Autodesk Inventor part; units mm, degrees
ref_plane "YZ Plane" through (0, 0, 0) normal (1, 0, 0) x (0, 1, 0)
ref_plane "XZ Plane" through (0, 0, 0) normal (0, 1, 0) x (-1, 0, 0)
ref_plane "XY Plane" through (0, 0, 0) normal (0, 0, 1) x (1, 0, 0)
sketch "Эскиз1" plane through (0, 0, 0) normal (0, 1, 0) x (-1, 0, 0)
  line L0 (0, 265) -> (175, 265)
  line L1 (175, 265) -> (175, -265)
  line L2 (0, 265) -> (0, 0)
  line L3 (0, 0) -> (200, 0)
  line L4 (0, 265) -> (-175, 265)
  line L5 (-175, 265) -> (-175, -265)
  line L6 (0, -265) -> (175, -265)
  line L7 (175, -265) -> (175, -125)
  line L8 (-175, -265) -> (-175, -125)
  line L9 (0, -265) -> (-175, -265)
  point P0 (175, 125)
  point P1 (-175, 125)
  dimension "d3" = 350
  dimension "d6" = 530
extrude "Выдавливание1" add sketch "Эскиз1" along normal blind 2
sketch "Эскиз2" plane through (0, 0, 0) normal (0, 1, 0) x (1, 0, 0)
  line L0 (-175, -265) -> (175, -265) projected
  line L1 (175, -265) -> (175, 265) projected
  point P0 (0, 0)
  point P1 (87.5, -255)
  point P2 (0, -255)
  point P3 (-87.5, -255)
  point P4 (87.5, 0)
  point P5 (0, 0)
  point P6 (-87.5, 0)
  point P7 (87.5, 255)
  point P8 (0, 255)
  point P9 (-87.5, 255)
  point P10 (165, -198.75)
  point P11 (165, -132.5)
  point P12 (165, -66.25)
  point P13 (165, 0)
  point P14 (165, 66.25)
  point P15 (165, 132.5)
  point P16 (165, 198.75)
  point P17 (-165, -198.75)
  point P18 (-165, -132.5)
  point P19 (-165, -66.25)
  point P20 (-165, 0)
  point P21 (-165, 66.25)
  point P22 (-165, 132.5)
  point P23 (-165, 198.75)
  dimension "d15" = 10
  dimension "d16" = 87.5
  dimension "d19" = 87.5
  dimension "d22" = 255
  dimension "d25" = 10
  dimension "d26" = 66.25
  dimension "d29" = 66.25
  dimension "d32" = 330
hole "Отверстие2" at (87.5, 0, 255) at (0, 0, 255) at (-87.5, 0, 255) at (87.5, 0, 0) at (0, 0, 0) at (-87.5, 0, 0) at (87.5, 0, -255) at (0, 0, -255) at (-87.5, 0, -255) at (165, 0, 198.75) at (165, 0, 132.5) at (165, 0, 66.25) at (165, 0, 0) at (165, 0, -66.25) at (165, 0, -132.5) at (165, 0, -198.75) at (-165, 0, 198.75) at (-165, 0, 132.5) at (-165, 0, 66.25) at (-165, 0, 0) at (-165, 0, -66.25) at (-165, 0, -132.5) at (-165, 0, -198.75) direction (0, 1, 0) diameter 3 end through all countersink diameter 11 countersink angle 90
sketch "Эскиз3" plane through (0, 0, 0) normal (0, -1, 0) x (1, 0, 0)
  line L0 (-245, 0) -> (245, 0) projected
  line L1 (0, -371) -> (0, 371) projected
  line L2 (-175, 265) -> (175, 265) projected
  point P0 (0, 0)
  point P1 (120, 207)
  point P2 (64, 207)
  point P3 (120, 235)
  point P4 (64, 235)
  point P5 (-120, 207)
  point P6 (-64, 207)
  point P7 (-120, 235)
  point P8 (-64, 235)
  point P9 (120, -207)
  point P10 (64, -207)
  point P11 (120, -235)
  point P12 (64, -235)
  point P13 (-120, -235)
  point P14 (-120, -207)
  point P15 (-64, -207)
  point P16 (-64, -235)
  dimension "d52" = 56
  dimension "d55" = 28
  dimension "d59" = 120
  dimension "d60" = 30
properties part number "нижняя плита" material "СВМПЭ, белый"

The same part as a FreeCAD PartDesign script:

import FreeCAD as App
import Part
import Sketcher


def add_polygon(sketch, points):
    """Adds a closed chain of lines whose ends are joined by coincident constraints."""
    first, n = sketch.GeometryCount, len(points)
    for a, b in zip(points, points[1:] + points[:1]):
        sketch.addGeometry(Part.LineSegment(App.Vector(*a, 0), App.Vector(*b, 0)), False)
    for i in range(n):
        sketch.addConstraint(Sketcher.Constraint("Coincident", first + i, 2, first + (i + 1) % n, 1))

doc = App.newDocument("Part")
body = doc.addObject("PartDesign::Body", "Body")

sketch1 = body.newObject("Sketcher::SketchObject", "Sketch")
sketch1.AttachmentSupport = (doc.getObject("XZ_Plane"), [""])
sketch1.MapMode = "FlatFace"
add_polygon(sketch1, [(-175, 265), (175, 265), (175, -265), (-175, -265)])
sketch1.addConstraint([
    Sketcher.Constraint("Horizontal", 0),
    Sketcher.Constraint("Vertical", 1),
    Sketcher.Constraint("Horizontal", 2),
    Sketcher.Constraint("Vertical", 3),
    Sketcher.Constraint("Symmetric", 0, 2, 2, 2, -1, 1),
    Sketcher.Constraint("DistanceX", 0, 1, 0, 2, 350.0),
    Sketcher.Constraint("DistanceY", 1, 2, 1, 1, 530.0),
])
pad1 = body.newObject("PartDesign::Pad", "Pad")
pad1.Profile = sketch1
pad1.Length = 2
pad1.Reversed = True

sketch2 = body.newObject("Sketcher::SketchObject", "Sketch001")
sketch2.AttachmentSupport = (doc.getObject("XZ_Plane"), [""])
sketch2.MapMode = "FlatFace"
sketch2.addGeometry([
    Part.Circle(App.Vector(87.5, 255, 0), App.Vector(0, 0, 1), 1.5),
    Part.Circle(App.Vector(0, 255, 0), App.Vector(0, 0, 1), 1.5),
    Part.Circle(App.Vector(-87.5, 255, 0), App.Vector(0, 0, 1), 1.5),
    Part.Circle(App.Vector(87.5, 0, 0), App.Vector(0, 0, 1), 1.5),
    Part.Circle(App.Vector(0, 0, 0), App.Vector(0, 0, 1), 1.5),
    Part.Circle(App.Vector(-87.5, 0, 0), App.Vector(0, 0, 1), 1.5),
    Part.Circle(App.Vector(87.5, -255, 0), App.Vector(0, 0, 1), 1.5),
    Part.Circle(App.Vector(0, -255, 0), App.Vector(0, 0, 1), 1.5),
    Part.Circle(App.Vector(-87.5, -255, 0), App.Vector(0, 0, 1), 1.5),
    Part.Circle(App.Vector(165, 198.75, 0), App.Vector(0, 0, 1), 1.5),
    Part.Circle(App.Vector(165, 132.5, 0), App.Vector(0, 0, 1), 1.5),
    Part.Circle(App.Vector(165, 66.25, 0), App.Vector(0, 0, 1), 1.5),
    Part.Circle(App.Vector(165, 0, 0), App.Vector(0, 0, 1), 1.5),
    Part.Circle(App.Vector(165, -66.25, 0), App.Vector(0, 0, 1), 1.5),
    Part.Circle(App.Vector(165, -132.5, 0), App.Vector(0, 0, 1), 1.5),
    Part.Circle(App.Vector(165, -198.75, 0), App.Vector(0, 0, 1), 1.5),
    Part.Circle(App.Vector(-165, 198.75, 0), App.Vector(0, 0, 1), 1.5),
    Part.Circle(App.Vector(-165, 132.5, 0), App.Vector(0, 0, 1), 1.5),
    Part.Circle(App.Vector(-165, 66.25, 0), App.Vector(0, 0, 1), 1.5),
    Part.Circle(App.Vector(-165, 0, 0), App.Vector(0, 0, 1), 1.5),
    Part.Circle(App.Vector(-165, -66.25, 0), App.Vector(0, 0, 1), 1.5),
    Part.Circle(App.Vector(-165, -132.5, 0), App.Vector(0, 0, 1), 1.5),
    Part.Circle(App.Vector(-165, -198.75, 0), App.Vector(0, 0, 1), 1.5),
], False)
sketch2.addConstraint([
    Sketcher.Constraint("Coincident", 4, 3, -1, 1),
    Sketcher.Constraint("Equal", 0, 1),
    Sketcher.Constraint("Equal", 1, 2),
    Sketcher.Constraint("Equal", 2, 3),
    Sketcher.Constraint("Equal", 3, 4),
    Sketcher.Constraint("Equal", 4, 5),
    Sketcher.Constraint("Equal", 5, 6),
    Sketcher.Constraint("Equal", 6, 7),
    Sketcher.Constraint("Equal", 7, 8),
    Sketcher.Constraint("Equal", 8, 9),
    Sketcher.Constraint("Equal", 9, 10),
    Sketcher.Constraint("Equal", 10, 11),
    Sketcher.Constraint("Equal", 11, 12),
    Sketcher.Constraint("Equal", 12, 13),
    Sketcher.Constraint("Equal", 13, 14),
    Sketcher.Constraint("Equal", 14, 15),
    Sketcher.Constraint("Equal", 15, 16),
    Sketcher.Constraint("Equal", 16, 17),
    Sketcher.Constraint("Equal", 17, 18),
    Sketcher.Constraint("Equal", 18, 19),
    Sketcher.Constraint("Equal", 19, 20),
    Sketcher.Constraint("Equal", 20, 21),
    Sketcher.Constraint("Equal", 21, 22),
    Sketcher.Constraint("Symmetric", 3, 3, 5, 3, -1, 1),
    Sketcher.Constraint("Symmetric", 2, 3, 6, 3, -1, 1),
    Sketcher.Constraint("Symmetric", 1, 3, 7, 3, -1, 1),
    Sketcher.Constraint("Symmetric", 0, 3, 8, 3, -1, 1),
    Sketcher.Constraint("Symmetric", 15, 3, 16, 3, -1, 1),
    Sketcher.Constraint("Symmetric", 14, 3, 17, 3, -1, 1),
    Sketcher.Constraint("Symmetric", 13, 3, 18, 3, -1, 1),
    Sketcher.Constraint("Symmetric", 12, 3, 19, 3, -1, 1),
    Sketcher.Constraint("Symmetric", 11, 3, 20, 3, -1, 1),
    Sketcher.Constraint("Symmetric", 10, 3, 21, 3, -1, 1),
    Sketcher.Constraint("Symmetric", 9, 3, 22, 3, -1, 1),
    Sketcher.Constraint("Symmetric", 0, 3, 2, 3, -2),
    Sketcher.Constraint("Symmetric", 9, 3, 16, 3, -2),
    Sketcher.Constraint("Symmetric", 10, 3, 17, 3, -2),
    Sketcher.Constraint("Symmetric", 11, 3, 18, 3, -2),
    Sketcher.Constraint("PointOnObject", 1, 3, -2),
    Sketcher.Constraint("PointOnObject", 3, 3, -1),
    Sketcher.Constraint("PointOnObject", 12, 3, -1),
    Sketcher.Constraint("Horizontal", 0, 3, 1, 3),
    Sketcher.Constraint("Vertical", 0, 3, 3, 3),
    Sketcher.Constraint("Vertical", 9, 3, 10, 3),
    Sketcher.Constraint("Vertical", 10, 3, 11, 3),
    Sketcher.Constraint("Vertical", 11, 3, 12, 3),
    Sketcher.Constraint("Diameter", 0, 3.0),
    Sketcher.Constraint("DistanceY", -1, 1, 0, 3, 255.0),
    Sketcher.Constraint("DistanceX", -1, 1, 9, 3, 165.0),
    Sketcher.Constraint("DistanceX", 2, 3, 0, 3, 175.0),
    Sketcher.Constraint("DistanceY", -1, 1, 10, 3, 132.5),
    Sketcher.Constraint("DistanceY", 11, 3, 9, 3, 132.5),
    Sketcher.Constraint("DistanceY", 13, 3, 11, 3, 132.5),
])
doc.recompute()
hole = body.newObject("PartDesign::Hole", "Hole")
hole.Profile = sketch2
hole.ThreadType = "None"
hole.Diameter = 3
hole.DepthType = "ThroughAll"
hole.HoleCutType = "Countersink"
hole.HoleCutDiameter = 11
hole.HoleCutCountersinkAngle = 90

doc.recompute()
